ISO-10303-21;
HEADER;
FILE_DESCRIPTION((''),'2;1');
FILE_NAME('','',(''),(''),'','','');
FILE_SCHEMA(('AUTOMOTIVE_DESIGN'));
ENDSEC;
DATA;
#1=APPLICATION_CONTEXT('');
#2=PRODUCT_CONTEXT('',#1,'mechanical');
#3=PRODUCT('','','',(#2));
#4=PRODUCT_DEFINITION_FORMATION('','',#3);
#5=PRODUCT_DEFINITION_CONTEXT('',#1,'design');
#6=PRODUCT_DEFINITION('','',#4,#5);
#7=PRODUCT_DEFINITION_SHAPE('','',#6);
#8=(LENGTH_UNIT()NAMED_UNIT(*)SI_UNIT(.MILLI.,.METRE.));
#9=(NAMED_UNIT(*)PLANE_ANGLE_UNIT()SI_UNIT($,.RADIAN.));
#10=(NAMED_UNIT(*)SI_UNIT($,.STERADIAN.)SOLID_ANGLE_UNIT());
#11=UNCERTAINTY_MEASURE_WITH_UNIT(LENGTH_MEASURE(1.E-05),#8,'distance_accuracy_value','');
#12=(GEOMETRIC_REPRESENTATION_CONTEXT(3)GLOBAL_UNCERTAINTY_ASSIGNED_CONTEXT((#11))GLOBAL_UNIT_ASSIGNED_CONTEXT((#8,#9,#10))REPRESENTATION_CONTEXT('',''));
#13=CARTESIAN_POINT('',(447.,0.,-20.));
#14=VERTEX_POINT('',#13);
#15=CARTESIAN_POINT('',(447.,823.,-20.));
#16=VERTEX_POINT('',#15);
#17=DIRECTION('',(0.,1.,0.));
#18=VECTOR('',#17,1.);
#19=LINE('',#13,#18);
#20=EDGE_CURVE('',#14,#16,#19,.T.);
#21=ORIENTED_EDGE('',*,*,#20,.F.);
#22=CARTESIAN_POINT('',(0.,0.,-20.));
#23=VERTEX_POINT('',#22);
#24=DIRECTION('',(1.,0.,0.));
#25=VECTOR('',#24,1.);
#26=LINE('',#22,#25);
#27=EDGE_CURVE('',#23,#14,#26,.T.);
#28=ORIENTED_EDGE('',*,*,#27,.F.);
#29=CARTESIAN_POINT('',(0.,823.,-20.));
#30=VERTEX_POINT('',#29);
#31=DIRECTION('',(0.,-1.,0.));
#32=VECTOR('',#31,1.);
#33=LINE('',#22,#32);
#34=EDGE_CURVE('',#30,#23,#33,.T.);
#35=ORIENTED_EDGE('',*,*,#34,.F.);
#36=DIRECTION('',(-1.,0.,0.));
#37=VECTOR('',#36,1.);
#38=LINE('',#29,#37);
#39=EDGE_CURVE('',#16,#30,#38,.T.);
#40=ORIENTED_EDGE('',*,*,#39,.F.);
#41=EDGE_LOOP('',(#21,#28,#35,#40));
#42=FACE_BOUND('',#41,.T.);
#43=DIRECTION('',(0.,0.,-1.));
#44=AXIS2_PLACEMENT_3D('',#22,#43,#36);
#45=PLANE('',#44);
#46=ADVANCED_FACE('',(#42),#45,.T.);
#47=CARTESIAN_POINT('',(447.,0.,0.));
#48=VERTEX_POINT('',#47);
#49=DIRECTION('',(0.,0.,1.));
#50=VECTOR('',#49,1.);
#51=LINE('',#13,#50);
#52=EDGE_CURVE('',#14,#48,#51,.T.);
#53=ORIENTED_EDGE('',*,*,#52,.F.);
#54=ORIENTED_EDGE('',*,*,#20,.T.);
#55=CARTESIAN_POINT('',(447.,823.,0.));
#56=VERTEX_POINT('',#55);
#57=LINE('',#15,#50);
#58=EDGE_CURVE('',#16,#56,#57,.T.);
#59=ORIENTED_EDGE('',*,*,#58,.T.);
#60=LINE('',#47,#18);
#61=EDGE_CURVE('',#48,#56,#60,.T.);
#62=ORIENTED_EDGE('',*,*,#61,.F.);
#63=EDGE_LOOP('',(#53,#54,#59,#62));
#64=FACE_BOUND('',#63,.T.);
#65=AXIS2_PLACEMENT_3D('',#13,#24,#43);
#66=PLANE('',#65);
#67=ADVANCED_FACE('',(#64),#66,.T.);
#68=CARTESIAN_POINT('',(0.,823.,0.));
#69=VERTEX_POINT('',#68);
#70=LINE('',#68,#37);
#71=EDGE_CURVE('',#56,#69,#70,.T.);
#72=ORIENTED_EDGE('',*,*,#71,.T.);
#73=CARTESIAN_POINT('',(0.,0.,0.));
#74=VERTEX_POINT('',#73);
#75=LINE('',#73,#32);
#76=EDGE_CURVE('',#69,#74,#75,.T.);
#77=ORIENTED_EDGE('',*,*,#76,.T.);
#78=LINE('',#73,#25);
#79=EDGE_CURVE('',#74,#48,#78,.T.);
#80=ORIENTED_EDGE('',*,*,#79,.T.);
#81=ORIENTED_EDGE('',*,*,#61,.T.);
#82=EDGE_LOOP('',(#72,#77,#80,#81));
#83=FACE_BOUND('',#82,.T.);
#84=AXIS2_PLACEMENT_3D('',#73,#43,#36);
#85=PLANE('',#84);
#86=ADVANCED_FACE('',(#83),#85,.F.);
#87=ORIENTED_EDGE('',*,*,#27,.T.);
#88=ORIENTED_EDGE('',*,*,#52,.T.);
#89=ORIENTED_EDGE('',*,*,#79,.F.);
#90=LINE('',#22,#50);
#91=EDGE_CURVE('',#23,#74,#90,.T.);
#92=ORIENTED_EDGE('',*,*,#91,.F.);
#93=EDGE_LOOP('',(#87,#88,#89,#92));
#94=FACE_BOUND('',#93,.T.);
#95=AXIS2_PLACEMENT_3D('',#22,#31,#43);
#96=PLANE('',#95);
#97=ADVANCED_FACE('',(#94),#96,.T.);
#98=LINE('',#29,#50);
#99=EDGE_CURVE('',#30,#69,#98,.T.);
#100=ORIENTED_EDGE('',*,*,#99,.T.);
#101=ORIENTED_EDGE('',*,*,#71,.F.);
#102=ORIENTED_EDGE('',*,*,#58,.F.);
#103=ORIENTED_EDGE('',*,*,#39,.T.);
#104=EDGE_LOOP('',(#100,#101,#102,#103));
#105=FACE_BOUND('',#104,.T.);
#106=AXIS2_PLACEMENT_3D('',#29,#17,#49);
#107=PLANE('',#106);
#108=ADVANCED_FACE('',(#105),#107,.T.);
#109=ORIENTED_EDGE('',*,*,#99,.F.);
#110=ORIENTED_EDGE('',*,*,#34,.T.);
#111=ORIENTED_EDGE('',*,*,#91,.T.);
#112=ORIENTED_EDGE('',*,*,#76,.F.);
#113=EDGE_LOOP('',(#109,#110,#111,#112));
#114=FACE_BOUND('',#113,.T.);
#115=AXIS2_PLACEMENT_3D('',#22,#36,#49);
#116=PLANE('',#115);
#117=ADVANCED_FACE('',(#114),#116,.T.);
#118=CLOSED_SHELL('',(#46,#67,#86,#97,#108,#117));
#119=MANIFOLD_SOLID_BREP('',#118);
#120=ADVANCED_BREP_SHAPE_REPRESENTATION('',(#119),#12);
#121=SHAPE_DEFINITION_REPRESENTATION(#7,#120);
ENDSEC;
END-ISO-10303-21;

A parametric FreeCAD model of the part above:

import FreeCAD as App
import Part
import Sketcher

V = App.Vector
Q = App.Units.Quantity


def add_polygon(sketch, points):
    """Adds a closed chain of lines whose ends are joined by coincident constraints."""
    first, n = sketch.GeometryCount, len(points)
    for a, b in zip(points, points[1:] + points[:1]):
        sketch.addGeometry(Part.LineSegment(App.Vector(*a, 0), App.Vector(*b, 0)), False)
    for i in range(n):
        sketch.addConstraint(Sketcher.Constraint("Coincident", first + i, 2, first + (i + 1) % n, 1))

doc = App.newDocument("Part")
body = doc.addObject("PartDesign::Body", "Body")

# Sketch on XY plane
sketch1 = body.newObject("Sketcher::SketchObject", "Sketch")
sketch1.AttachmentSupport = (doc.getObject("XY_Plane"), [""])
sketch1.MapMode = "FlatFace"
add_polygon(sketch1, [(0, 823), (0, 0), (447, 0), (447, 823)])  # lines 0-3
sketch1.addConstraint([
    Sketcher.Constraint("Vertical", 0),
    Sketcher.Constraint("Horizontal", 1),
    Sketcher.Constraint("Vertical", 2),
    Sketcher.Constraint("Horizontal", 3),
    Sketcher.Constraint("Coincident", 0, 2, -1, 1),
    Sketcher.Constraint("DistanceX", 1, 1, 1, 2, Q("447 mm")),
    Sketcher.Constraint("DistanceY", 0, 2, 0, 1, Q("823 mm")),
])
pad1 = body.newObject("PartDesign::Pad", "Pad")
pad1.Profile = sketch1
pad1.Length = 20
pad1.Reversed = True

doc.recompute()
